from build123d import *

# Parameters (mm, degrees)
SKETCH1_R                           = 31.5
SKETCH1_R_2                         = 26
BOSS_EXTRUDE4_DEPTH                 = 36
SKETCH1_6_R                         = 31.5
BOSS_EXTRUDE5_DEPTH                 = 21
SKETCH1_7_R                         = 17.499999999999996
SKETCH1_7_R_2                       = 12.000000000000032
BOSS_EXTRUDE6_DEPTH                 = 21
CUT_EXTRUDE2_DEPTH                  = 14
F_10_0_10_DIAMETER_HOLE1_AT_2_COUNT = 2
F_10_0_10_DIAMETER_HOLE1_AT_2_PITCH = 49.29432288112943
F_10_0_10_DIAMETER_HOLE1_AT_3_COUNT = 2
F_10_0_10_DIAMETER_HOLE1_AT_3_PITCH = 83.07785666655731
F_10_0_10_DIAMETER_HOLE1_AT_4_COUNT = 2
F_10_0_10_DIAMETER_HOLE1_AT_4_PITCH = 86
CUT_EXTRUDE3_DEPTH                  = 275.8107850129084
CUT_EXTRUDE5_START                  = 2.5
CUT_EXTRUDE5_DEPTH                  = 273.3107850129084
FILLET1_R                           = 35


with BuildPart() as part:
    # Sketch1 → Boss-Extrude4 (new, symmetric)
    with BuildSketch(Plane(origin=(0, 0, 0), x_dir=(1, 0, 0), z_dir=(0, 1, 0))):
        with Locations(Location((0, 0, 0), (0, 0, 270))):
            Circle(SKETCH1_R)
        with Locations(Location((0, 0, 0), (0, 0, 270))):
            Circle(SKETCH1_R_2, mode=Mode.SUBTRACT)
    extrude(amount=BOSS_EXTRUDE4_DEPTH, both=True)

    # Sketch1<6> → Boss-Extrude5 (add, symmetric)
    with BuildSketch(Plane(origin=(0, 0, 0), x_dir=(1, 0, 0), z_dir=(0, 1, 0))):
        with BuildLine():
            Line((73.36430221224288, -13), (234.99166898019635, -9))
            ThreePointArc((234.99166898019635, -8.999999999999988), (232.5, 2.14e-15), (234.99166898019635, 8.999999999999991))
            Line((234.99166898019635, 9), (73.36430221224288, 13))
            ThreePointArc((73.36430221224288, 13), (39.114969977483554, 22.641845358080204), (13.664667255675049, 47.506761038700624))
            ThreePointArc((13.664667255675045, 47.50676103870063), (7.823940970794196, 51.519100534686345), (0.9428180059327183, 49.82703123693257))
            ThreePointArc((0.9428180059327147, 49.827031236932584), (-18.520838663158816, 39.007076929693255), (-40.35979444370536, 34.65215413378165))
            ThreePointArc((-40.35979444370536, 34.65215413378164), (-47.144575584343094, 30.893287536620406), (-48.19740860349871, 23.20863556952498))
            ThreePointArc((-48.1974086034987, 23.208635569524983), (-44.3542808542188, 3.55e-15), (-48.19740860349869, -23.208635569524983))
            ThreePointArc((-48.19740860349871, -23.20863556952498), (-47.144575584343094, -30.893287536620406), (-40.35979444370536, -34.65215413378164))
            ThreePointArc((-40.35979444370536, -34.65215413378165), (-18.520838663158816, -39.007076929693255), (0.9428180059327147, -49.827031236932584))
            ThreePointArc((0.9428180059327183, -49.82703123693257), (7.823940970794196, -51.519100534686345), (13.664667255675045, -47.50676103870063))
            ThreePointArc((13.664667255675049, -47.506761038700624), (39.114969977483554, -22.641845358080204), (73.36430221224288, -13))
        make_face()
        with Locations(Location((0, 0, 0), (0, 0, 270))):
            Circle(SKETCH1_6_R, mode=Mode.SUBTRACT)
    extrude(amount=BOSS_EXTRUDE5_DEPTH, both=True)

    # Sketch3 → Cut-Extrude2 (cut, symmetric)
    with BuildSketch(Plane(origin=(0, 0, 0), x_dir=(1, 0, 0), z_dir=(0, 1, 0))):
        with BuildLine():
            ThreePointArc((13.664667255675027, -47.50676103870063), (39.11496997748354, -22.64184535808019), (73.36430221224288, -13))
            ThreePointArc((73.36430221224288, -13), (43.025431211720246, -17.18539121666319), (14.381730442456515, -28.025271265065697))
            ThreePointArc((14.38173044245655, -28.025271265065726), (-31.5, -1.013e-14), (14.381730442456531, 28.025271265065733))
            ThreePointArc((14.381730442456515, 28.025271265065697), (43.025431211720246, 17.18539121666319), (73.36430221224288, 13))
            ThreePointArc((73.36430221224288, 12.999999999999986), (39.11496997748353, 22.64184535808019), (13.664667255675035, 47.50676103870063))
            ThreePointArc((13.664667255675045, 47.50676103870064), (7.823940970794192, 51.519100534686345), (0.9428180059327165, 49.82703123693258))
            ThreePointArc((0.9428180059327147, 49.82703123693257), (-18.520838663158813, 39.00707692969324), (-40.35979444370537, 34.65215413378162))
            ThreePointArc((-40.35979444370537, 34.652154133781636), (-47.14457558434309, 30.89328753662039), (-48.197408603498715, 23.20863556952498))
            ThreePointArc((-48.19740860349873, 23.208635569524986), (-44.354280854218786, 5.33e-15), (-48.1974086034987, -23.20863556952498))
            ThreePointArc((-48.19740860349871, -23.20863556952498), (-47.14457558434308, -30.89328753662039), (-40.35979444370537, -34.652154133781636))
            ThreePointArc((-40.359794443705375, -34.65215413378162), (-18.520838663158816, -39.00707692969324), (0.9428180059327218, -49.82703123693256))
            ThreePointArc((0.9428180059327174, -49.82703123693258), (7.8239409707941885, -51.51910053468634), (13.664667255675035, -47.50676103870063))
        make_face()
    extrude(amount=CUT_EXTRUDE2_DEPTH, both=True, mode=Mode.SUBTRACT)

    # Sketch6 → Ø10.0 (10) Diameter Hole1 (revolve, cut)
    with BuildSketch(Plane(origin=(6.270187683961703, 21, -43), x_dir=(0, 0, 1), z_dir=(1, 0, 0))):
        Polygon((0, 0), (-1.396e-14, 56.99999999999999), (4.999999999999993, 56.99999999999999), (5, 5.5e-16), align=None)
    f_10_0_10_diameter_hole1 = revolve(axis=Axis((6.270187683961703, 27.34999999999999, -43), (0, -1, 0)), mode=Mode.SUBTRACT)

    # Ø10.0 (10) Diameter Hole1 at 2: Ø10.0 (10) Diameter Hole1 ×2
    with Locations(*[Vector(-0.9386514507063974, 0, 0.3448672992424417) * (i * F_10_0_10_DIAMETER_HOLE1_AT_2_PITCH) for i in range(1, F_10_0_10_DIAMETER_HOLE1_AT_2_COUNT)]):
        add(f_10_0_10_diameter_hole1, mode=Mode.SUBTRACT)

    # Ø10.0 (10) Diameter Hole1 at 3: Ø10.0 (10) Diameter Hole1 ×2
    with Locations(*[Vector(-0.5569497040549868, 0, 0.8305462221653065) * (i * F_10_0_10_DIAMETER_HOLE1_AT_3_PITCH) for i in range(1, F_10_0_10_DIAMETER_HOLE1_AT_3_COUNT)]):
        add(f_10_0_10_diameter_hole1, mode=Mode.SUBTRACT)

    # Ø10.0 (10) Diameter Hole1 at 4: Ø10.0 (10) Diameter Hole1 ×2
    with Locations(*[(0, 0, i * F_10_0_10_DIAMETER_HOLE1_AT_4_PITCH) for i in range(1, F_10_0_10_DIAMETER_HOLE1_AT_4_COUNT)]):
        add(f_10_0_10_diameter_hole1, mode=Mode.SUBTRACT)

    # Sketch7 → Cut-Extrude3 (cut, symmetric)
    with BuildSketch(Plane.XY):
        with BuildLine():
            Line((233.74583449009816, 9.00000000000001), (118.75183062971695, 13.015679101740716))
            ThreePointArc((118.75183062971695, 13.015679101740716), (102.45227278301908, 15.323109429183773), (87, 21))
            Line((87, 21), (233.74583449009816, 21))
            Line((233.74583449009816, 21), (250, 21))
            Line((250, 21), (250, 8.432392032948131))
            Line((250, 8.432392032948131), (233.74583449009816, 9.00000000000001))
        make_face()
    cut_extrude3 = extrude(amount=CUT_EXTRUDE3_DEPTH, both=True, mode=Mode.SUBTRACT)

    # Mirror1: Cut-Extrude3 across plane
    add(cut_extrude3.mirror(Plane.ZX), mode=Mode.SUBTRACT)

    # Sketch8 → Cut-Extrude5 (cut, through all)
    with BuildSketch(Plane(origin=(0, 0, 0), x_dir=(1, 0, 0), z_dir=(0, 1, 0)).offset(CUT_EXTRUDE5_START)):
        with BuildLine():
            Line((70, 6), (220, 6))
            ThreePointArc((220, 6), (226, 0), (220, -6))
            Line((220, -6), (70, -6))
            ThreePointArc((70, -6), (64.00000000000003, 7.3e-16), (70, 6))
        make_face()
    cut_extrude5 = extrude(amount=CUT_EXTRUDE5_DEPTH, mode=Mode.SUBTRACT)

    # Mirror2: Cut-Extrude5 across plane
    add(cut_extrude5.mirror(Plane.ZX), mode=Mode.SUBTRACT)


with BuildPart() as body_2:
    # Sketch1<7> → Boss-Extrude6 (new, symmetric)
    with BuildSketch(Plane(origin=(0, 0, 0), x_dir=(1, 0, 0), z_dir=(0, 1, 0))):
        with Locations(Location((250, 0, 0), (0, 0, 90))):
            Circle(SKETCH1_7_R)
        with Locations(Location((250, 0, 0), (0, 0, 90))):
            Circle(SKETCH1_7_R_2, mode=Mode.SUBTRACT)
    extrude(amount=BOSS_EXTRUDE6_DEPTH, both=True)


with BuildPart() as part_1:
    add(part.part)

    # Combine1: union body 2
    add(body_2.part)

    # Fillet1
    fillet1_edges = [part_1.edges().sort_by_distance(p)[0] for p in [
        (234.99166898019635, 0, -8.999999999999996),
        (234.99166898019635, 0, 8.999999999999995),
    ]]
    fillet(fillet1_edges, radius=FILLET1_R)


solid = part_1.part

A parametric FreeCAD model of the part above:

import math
import FreeCAD as App
import Part
import Sketcher

V = App.Vector
Q = App.Units.Quantity


def edges_at(feature, points):
    """Names of the edges that pass closest to the given points."""
    edges = feature.Shape.Edges
    near = lambda p: min(range(len(edges)), key=lambda i: edges[i].distToShape(Part.Vertex(*p))[0])
    return sorted({f"Edge{near(p) + 1}" for p in points})

doc = App.newDocument("Part")
body = doc.addObject("PartDesign::Body", "Body")

sketch1 = doc.addObject("Sketcher::SketchObject", "Sketch")
body.addObject(sketch1)
sketch1.AttachmentSupport = (doc.XZ_Plane, [""])
sketch1.MapMode = "FlatFace"
sketch1.addGeometry([
    Part.Circle(V(0, 0, 0), V(0, 0, 1), 31.5),
    Part.Circle(V(0, 0, 0), V(0, 0, 1), 26),
], False)
sketch1.addConstraint([
    Sketcher.Constraint("Coincident", 0, 3, -1, 1),
    Sketcher.Constraint("Coincident", 1, 3, -1, 1),
    Sketcher.Constraint("Diameter", 0, 63.0),
    Sketcher.Constraint("Diameter", 1, 52.0),
])
pad1 = doc.addObject("PartDesign::Pad", "Pad")
body.addObject(pad1)
pad1.Profile = sketch1
pad1.Length = 72
pad1.Midplane = True

sketch2 = doc.addObject("Sketcher::SketchObject", "Sketch001")
body.addObject(sketch2)
sketch2.AttachmentSupport = (doc.XZ_Plane, [""])
sketch2.MapMode = "FlatFace"
sketch2.addGeometry([
    Part.LineSegment(V(73.364302, 13, 0), V(234.991669, 9, 0)),
    Part.ArcOfCircle(Part.Circle(V(250, 0, 0), V(0, 0, 1), 17.5), math.radians(149.050277), math.radians(210.949723)),
    Part.LineSegment(V(234.991669, -9, 0), V(73.364302, -13, 0)),
    Part.ArcOfCircle(Part.Circle(V(75.145633, -84.977961, 0), V(0, 0, 1), 72), math.radians(91.417683), math.radians(148.638677)),
    Part.ArcOfCircle(Part.Circle(V(6.270188, -43, 0), V(0, 0, 1), 8.659632), math.radians(-127.966154), math.radians(-31.361323)),
    Part.ArcOfCircle(Part.Circle(V(-43.351284, -106.589981, 0), V(0, 0, 1), 72), math.radians(52.033846), math.radians(87.618763)),
    Part.ArcOfCircle(Part.Circle(V(-40, -26, 0), V(0, 0, 1), 8.659632), math.radians(161.195372), math.radians(267.618763)),
    Part.ArcOfCircle(Part.Circle(V(-116.354281, 0, 0), V(0, 0, 1), 72), math.radians(-18.804628), math.radians(18.804628)),
    Part.ArcOfCircle(Part.Circle(V(-40, 26, 0), V(0, 0, 1), 8.659632), math.radians(92.381237), math.radians(198.804628)),
    Part.ArcOfCircle(Part.Circle(V(-43.351284, 106.589981, 0), V(0, 0, 1), 72), math.radians(-87.618763), math.radians(-52.033846)),
    Part.ArcOfCircle(Part.Circle(V(6.270188, 43, 0), V(0, 0, 1), 8.659632), math.radians(31.361323), math.radians(127.966154)),
    Part.ArcOfCircle(Part.Circle(V(75.145633, 84.977961, 0), V(0, 0, 1), 72), math.radians(-148.638677), math.radians(-91.417683)),
    Part.Circle(V(0, 0, 0), V(0, 0, 1), 31.5),
], False)
sketch2.addConstraint([
    Sketcher.Constraint("Coincident", 0, 2, 1, 1),
    Sketcher.Constraint("Coincident", 1, 2, 2, 1),
    Sketcher.Constraint("Tangent", 2, 2, 3, 1),
    Sketcher.Constraint("Tangent", 3, 2, 4, 2),
    Sketcher.Constraint("Tangent", 4, 1, 5, 1),
    Sketcher.Constraint("Tangent", 5, 2, 6, 2),
    Sketcher.Constraint("Tangent", 6, 1, 7, 1),
    Sketcher.Constraint("Tangent", 7, 2, 8, 2),
    Sketcher.Constraint("Tangent", 8, 1, 9, 1),
    Sketcher.Constraint("Tangent", 9, 2, 10, 2),
    Sketcher.Constraint("Tangent", 10, 1, 11, 1),
    Sketcher.Constraint("Tangent", 11, 2, 0, 1),
    Sketcher.Constraint("Coincident", 12, 3, -1, 1),
    Sketcher.Constraint("Equal", 3, 5),
    Sketcher.Constraint("Equal", 4, 6),
    Sketcher.Constraint("Equal", 5, 7),
    Sketcher.Constraint("Equal", 6, 8),
    Sketcher.Constraint("Equal", 7, 9),
    Sketcher.Constraint("Equal", 8, 10),
    Sketcher.Constraint("Equal", 9, 11),
    Sketcher.Constraint("Symmetric", 6, 3, 8, 3, -1),
    Sketcher.Constraint("Symmetric", 4, 3, 10, 3, -1),
    Sketcher.Constraint("Symmetric", 0, 2, 1, 2, -1),
    Sketcher.Constraint("Vertical", 3, 3, 11, 3),
    Sketcher.Constraint("Diameter", 12, 63.0),
    Sketcher.Constraint("Radius", 3, 72.0),
    Sketcher.Constraint("Radius", 1, 17.5),
    Sketcher.Constraint("DistanceX", -1, 1, 1, 3, 250.0),
    Sketcher.Constraint("DistanceY", 4, 3, -1, 1, 43.0),
    Sketcher.Constraint("DistanceX", 6, 3, -1, 1, 40.0),
    Sketcher.Constraint("DistanceY", 6, 3, -1, 1, 26.0),
    Sketcher.Constraint("DistanceY", -1, 1, 0, 2, 9.0),
    Sketcher.Constraint("DistanceY", 2, 2, -1, 1, 13.0),
    Sketcher.Constraint("Radius", 4, 8.659632),
    Sketcher.Constraint("DistanceY", 5, 3, -1, 1, 106.589981),
])
pad2 = doc.addObject("PartDesign::Pad", "Pad001")
body.addObject(pad2)
pad2.Profile = sketch2
pad2.Length = 42
pad2.Midplane = True

sketch3 = doc.addObject("Sketcher::SketchObject", "Sketch002")
body.addObject(sketch3)
sketch3.AttachmentSupport = (doc.XZ_Plane, [""])
sketch3.MapMode = "FlatFace"
sketch3.addGeometry([
    Part.ArcOfCircle(Part.Circle(V(75.145633, 84.977961, 0), V(0, 0, 1), 72), math.radians(-148.638677), math.radians(-91.417683)),
    Part.ArcOfCircle(Part.Circle(V(76.743635, 149.54815, 0), V(0, 0, 1), 136.58996), math.radians(-117.165537), math.radians(-91.417683)),
    Part.ArcOfCircle(Part.Circle(V(0, 0, 0), V(0, 0, 1), 31.5), math.radians(62.834463), math.radians(297.165537)),
    Part.ArcOfCircle(Part.Circle(V(76.743635, -149.54815, 0), V(0, 0, 1), 136.58996), math.radians(91.417683), math.radians(117.165537)),
    Part.ArcOfCircle(Part.Circle(V(75.145633, -84.977961, 0), V(0, 0, 1), 72), math.radians(91.417683), math.radians(148.638677)),
    Part.ArcOfCircle(Part.Circle(V(6.270188, -43, 0), V(0, 0, 1), 8.659632), math.radians(-127.966154), math.radians(-31.361323)),
    Part.ArcOfCircle(Part.Circle(V(-43.351284, -106.589981, 0), V(0, 0, 1), 72), math.radians(52.033846), math.radians(87.618763)),
    Part.ArcOfCircle(Part.Circle(V(-40, -26, 0), V(0, 0, 1), 8.659632), math.radians(161.195372), math.radians(267.618763)),
    Part.ArcOfCircle(Part.Circle(V(-116.354281, 0, 0), V(0, 0, 1), 72), math.radians(-18.804628), math.radians(18.804628)),
    Part.ArcOfCircle(Part.Circle(V(-40, 26, 0), V(0, 0, 1), 8.659632), math.radians(92.381237), math.radians(198.804628)),
    Part.ArcOfCircle(Part.Circle(V(-43.351284, 106.589981, 0), V(0, 0, 1), 72), math.radians(-87.618763), math.radians(-52.033846)),
    Part.ArcOfCircle(Part.Circle(V(6.270188, 43, 0), V(0, 0, 1), 8.659632), math.radians(31.361323), math.radians(127.966154)),
], False)
sketch3.addConstraint([
    Sketcher.Constraint("Tangent", 0, 2, 1, 2),
    Sketcher.Constraint("Tangent", 1, 1, 2, 1),
    Sketcher.Constraint("Tangent", 2, 2, 3, 2),
    Sketcher.Constraint("Tangent", 3, 1, 4, 1),
    Sketcher.Constraint("Tangent", 4, 2, 5, 2),
    Sketcher.Constraint("Tangent", 5, 1, 6, 1),
    Sketcher.Constraint("Tangent", 6, 2, 7, 2),
    Sketcher.Constraint("Tangent", 7, 1, 8, 1),
    Sketcher.Constraint("Tangent", 8, 2, 9, 2),
    Sketcher.Constraint("Tangent", 9, 1, 10, 1),
    Sketcher.Constraint("Tangent", 10, 2, 11, 2),
    Sketcher.Constraint("Tangent", 11, 1, 0, 1),
    Sketcher.Constraint("Coincident", 2, 3, -1, 1),
    Sketcher.Constraint("Equal", 1, 3),
    Sketcher.Constraint("Equal", 0, 4),
    Sketcher.Constraint("Equal", 4, 6),
    Sketcher.Constraint("Equal", 5, 7),
    Sketcher.Constraint("Equal", 6, 8),
    Sketcher.Constraint("Equal", 7, 9),
    Sketcher.Constraint("Equal", 8, 10),
    Sketcher.Constraint("Equal", 9, 11),
    Sketcher.Constraint("Symmetric", 0, 3, 4, 3, -1),
    Sketcher.Constraint("Symmetric", 7, 3, 9, 3, -1),
    Sketcher.Constraint("Vertical", 6, 3, 10, 3),
    Sketcher.Constraint("Radius", 0, 72.0),
    Sketcher.Constraint("Radius", 2, 31.5),
    Sketcher.Constraint("DistanceY", 5, 3, -1, 1, 43.0),
    Sketcher.Constraint("DistanceX", 7, 3, -1, 1, 40.0),
    Sketcher.Constraint("DistanceY", 7, 3, -1, 1, 26.0),
    Sketcher.Constraint("DistanceY", -1, 1, 0, 2, 13.0),
    Sketcher.Constraint("Radius", 1, 136.58996),
    Sketcher.Constraint("Radius", 5, 8.659632),
    Sketcher.Constraint("DistanceX", 0, 3, 1, 3, 1.598001),
])
pocket1 = doc.addObject("PartDesign::Pocket", "Pocket")
body.addObject(pocket1)
pocket1.Profile = sketch3
pocket1.Length = 28
pocket1.Midplane = True

sketch4 = doc.addObject("Sketcher::SketchObject", "Sketch003")
body.addObject(sketch4)
sketch4.AttachmentSupport = (doc.YZ_Plane, [""])
sketch4.MapMode = "FlatFace"
sketch4.AttachmentOffset = App.Placement(V(0, 0, 6.270188), App.Rotation())
sketch4.addGeometry([
    Part.LineSegment(V(-36, -43, 0), V(21, -43, 0)),
    Part.LineSegment(V(21, -43, 0), V(21, -38, 0)),
    Part.LineSegment(V(21, -38, 0), V(-36, -38, 0)),
    Part.LineSegment(V(-36, -38, 0), V(-36, -43, 0)),
], False)
sketch4.addGeometry(Part.LineSegment(V(21, -43, 0), V(-36, -43, 0)), True)
sketch4.addConstraint([
    Sketcher.Constraint("Coincident", 0, 2, 1, 1),
    Sketcher.Constraint("Coincident", 1, 2, 2, 1),
    Sketcher.Constraint("Coincident", 2, 2, 3, 1),
    Sketcher.Constraint("Coincident", 3, 2, 0, 1),
    Sketcher.Constraint("Horizontal", 0),
    Sketcher.Constraint("Vertical", 1),
    Sketcher.Constraint("Horizontal", 2),
    Sketcher.Constraint("Vertical", 3),
    Sketcher.Constraint("Horizontal", 4),
    Sketcher.Constraint("Coincident", 4, 1, 0, 2),
    Sketcher.Constraint("Vertical", 2, 2, 4, 2),
    Sketcher.Constraint("DistanceX", 0, 1, 0, 2, 57.0),
    Sketcher.Constraint("DistanceY", 1, 1, 1, 2, 5.0),
    Sketcher.Constraint("DistanceX", -1, 1, 0, 2, 21.0),
    Sketcher.Constraint("DistanceY", 0, 2, -1, 1, 43.0),
])
groove = doc.addObject("PartDesign::Groove", "Groove")
body.addObject(groove)
groove.Profile = sketch4
groove.ReferenceAxis = (sketch4, ["Axis0"])
groove.Angle = 360
doc.recompute()

datumline = doc.addObject("PartDesign::Line", "DatumLine")
body.addObject(datumline)
datumline.Placement = App.Placement(V(0, 0, 0), App.Rotation(V(0, 0, 1), V(-0.938651451, 0, 0.344867299)))
linearpattern = doc.addObject("PartDesign::LinearPattern", "LinearPattern")
body.addObject(linearpattern)
linearpattern.Originals = [groove]
linearpattern.Direction = (datumline, [""])
linearpattern.Mode = "offset"
linearpattern.Offset = 49.294323
linearpattern.Occurrences = 2
body.Tip = linearpattern
doc.recompute()

datumline2 = doc.addObject("PartDesign::Line", "DatumLine001")
body.addObject(datumline2)
datumline2.Placement = App.Placement(V(0, 0, 0), App.Rotation(V(0, 0, 1), V(-0.556949704, 0, 0.830546222)))
linearpattern2 = doc.addObject("PartDesign::LinearPattern", "LinearPattern001")
body.addObject(linearpattern2)
linearpattern2.Originals = [groove]
linearpattern2.Direction = (datumline2, [""])
linearpattern2.Mode = "offset"
linearpattern2.Offset = 83.077857
linearpattern2.Occurrences = 2
body.Tip = linearpattern2
doc.recompute()

linearpattern3 = doc.addObject("PartDesign::LinearPattern", "LinearPattern002")
body.addObject(linearpattern3)
linearpattern3.Originals = [groove]
linearpattern3.Direction = (doc.Z_Axis, [""])
linearpattern3.Mode = "offset"
linearpattern3.Offset = 86
linearpattern3.Occurrences = 2
body.Tip = linearpattern3

sketch5 = doc.addObject("Sketcher::SketchObject", "Sketch004")
body.addObject(sketch5)
sketch5.AttachmentSupport = (doc.XY_Plane, [""])
sketch5.MapMode = "FlatFace"
sketch5.addGeometry([
    Part.ArcOfCircle(Part.Circle(V(121.473991, 90.968164, 0), V(0, 0, 1), 78), math.radians(-116.229914), math.radians(-92)),
    Part.LineSegment(V(118.751831, 13.015679, 0), V(250, 8.432392, 0)),
    Part.LineSegment(V(250, 8.432392, 0), V(250, 21, 0)),
    Part.LineSegment(V(250, 21, 0), V(87, 21, 0)),
], False)
sketch5.addConstraint([
    Sketcher.Constraint("Tangent", 0, 2, 1, 1),
    Sketcher.Constraint("Coincident", 1, 2, 2, 1),
    Sketcher.Constraint("Coincident", 2, 2, 3, 1),
    Sketcher.Constraint("Coincident", 3, 2, 0, 1),
    Sketcher.Constraint("Vertical", 2),
    Sketcher.Constraint("Horizontal", 3),
    Sketcher.Constraint("Radius", 0, 78.0),
    Sketcher.Constraint("DistanceX", 3, 2, 3, 1, 163.0),
    Sketcher.Constraint("Angle", 1, Q("-2 deg")),
    Sketcher.Constraint("DistanceX", -1, 1, 1, 2, 250.0),
    Sketcher.Constraint("DistanceY", -1, 1, 2, 2, 21.0),
    Sketcher.Constraint("Distance", 1, 131.328171),
])
pocket2 = doc.addObject("PartDesign::Pocket", "Pocket001")
body.addObject(pocket2)
pocket2.Profile = sketch5
pocket2.Length = 551.62157
pocket2.Midplane = True
doc.recompute()

mirrored = doc.addObject("PartDesign::Mirrored", "Mirrored")
body.addObject(mirrored)
mirrored.Originals = [pocket2]
mirrored.MirrorPlane = (doc.XZ_Plane, [""])
body.Tip = mirrored

sketch6 = doc.addObject("Sketcher::SketchObject", "Sketch005")
body.addObject(sketch6)
sketch6.AttachmentSupport = (doc.XZ_Plane, [""])
sketch6.MapMode = "FlatFace"
sketch6.AttachmentOffset = App.Placement(V(0, 0, -2.5), App.Rotation())
sketch6.addGeometry([
    Part.LineSegment(V(220, -6, 0), V(70, -6, 0)),
    Part.ArcOfCircle(Part.Circle(V(70, 0, 0), V(0, 0, 1), 6), math.radians(90), math.radians(270)),
    Part.LineSegment(V(70, 6, 0), V(220, 6, 0)),
    Part.ArcOfCircle(Part.Circle(V(220, 0, 0), V(0, 0, 1), 6), math.radians(-90), math.radians(90)),
], False)
sketch6.addConstraint([
    Sketcher.Constraint("Tangent", 0, 2, 1, 2),
    Sketcher.Constraint("Tangent", 1, 1, 2, 1),
    Sketcher.Constraint("Tangent", 2, 2, 3, 2),
    Sketcher.Constraint("Tangent", 3, 1, 0, 1),
    Sketcher.Constraint("Horizontal", 0),
    Sketcher.Constraint("Horizontal", 2),
    Sketcher.Constraint("PointOnObject", 1, 3, -1),
    Sketcher.Constraint("Radius", 1, 6.0),
    Sketcher.Constraint("DistanceX", 0, 2, 0, 1, 150.0),
    Sketcher.Constraint("DistanceX", -1, 1, 1, 3, 70.0),
])
pocket3 = doc.addObject("PartDesign::Pocket", "Pocket002")
body.addObject(pocket3)
pocket3.Profile = sketch6
pocket3.Type = "ThroughAll"
doc.recompute()

mirrored2 = doc.addObject("PartDesign::Mirrored", "Mirrored001")
body.addObject(mirrored2)
mirrored2.Originals = [pocket3]
mirrored2.MirrorPlane = (doc.XZ_Plane, [""])
body.Tip = mirrored2
body2 = doc.addObject("PartDesign::Body", "Body001")

sketch7 = doc.addObject("Sketcher::SketchObject", "Sketch006")
body2.addObject(sketch7)
sketch7.AttachmentSupport = (doc.getObject("XZ_Plane001"), [""])
sketch7.MapMode = "FlatFace"
sketch7.addGeometry([
    Part.Circle(V(250, 0, 0), V(0, 0, 1), 17.5),
    Part.Circle(V(250, 0, 0), V(0, 0, 1), 12),
], False)
sketch7.addConstraint([
    Sketcher.Constraint("Coincident", 1, 3, 0, 3),
    Sketcher.Constraint("PointOnObject", 0, 3, -1),
    Sketcher.Constraint("Diameter", 0, 35.0),
    Sketcher.Constraint("Diameter", 1, 24.0),
    Sketcher.Constraint("DistanceX", -1, 1, 0, 3, 250.0),
])
pad3 = doc.addObject("PartDesign::Pad", "Pad002")
body2.addObject(pad3)
pad3.Profile = sketch7
pad3.Length = 42
pad3.Midplane = True
doc.recompute()

boolean = doc.addObject("PartDesign::Boolean", "Boolean")
body.addObject(boolean)
boolean.Type = "Fuse"
boolean.addObjects([body2])
doc.recompute()

fillet = doc.addObject("PartDesign::Fillet", "Fillet")
body.addObject(fillet)
fillet.Base = (boolean, edges_at(boolean, [(234.992, 0, -9), (234.992, 0, 9)]))
fillet.Radius = 35

doc.recompute()
